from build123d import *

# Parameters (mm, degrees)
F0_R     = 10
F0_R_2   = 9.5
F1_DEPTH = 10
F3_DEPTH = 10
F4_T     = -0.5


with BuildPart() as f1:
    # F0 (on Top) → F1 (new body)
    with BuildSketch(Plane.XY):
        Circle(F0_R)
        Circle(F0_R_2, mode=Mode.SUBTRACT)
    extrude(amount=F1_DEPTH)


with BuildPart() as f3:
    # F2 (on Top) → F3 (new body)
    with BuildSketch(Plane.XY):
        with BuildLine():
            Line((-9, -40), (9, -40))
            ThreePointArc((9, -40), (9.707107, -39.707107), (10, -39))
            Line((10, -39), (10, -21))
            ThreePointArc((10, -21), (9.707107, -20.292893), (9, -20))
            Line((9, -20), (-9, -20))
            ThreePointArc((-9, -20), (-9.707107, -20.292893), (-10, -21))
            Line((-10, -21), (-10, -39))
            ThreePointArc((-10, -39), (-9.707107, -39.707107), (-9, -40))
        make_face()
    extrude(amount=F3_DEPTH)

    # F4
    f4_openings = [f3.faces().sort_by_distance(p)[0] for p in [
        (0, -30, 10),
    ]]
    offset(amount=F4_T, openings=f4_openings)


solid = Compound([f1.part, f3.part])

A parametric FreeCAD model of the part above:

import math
import FreeCAD as App
import Part
import Sketcher
from FreeCAD import Vector
Q = App.Units.Quantity


def faces_at(feature, points):
    """Names of the faces that lie closest to the given points."""
    faces = feature.Shape.Faces
    near = lambda p: min(range(len(faces)), key=lambda i: faces[i].distToShape(Part.Vertex(*p))[0])
    return sorted({f"Face{near(p) + 1}" for p in points})

doc = App.newDocument("Part")
params = doc.addObject("Spreadsheet::Sheet", "Params")
for row, (alias, value) in enumerate([
    ("sketch1_diameter", "20 mm"),
    ("sketch1_diameter2", "19 mm"),
    ("pad1_length", "10 mm"),
    ("sketch2_radius", "0.999999 mm"),
    ("sketch2_width", "18 mm"),
    ("pad2_length", "10 mm"),
    ("thickness_wall", "0.5 mm"),
], start=1):
    params.set(f"A{row}", alias)
    params.set(f"B{row}", "=" + value)
    params.setAlias(f"B{row}", alias)

body = doc.addObject("PartDesign::Body", "Body")

# Sketch on XY plane
sketch1 = body.newObject("Sketcher::SketchObject", "Sketch")
sketch1.AttachmentSupport = (doc.getObject("XY_Plane"), [""])
sketch1.MapMode = "FlatFace"
sketch1.addGeometry([
    Part.Circle(Vector(0, 0, 0), Vector(0, 0, 1), 10),
    Part.Circle(Vector(0, 0, 0), Vector(0, 0, 1), 10),
], False)
sketch1.addConstraint([
    Sketcher.Constraint("Coincident", 0, 3, -1, 1),
    Sketcher.Constraint("Coincident", 1, 3, -1, 1),
    Sketcher.Constraint("Diameter", 0, Q("20 mm")),
    Sketcher.Constraint("Diameter", 1, Q("19 mm")),
])
sketch1.setExpression("Constraints[2]", "Params.sketch1_diameter")
sketch1.setExpression("Constraints[3]", "Params.sketch1_diameter2")
pad1 = body.newObject("PartDesign::Pad", "Pad")
pad1.Profile = sketch1
pad1.setExpression("Length", "Params.pad1_length")
body2 = doc.addObject("PartDesign::Body", "Body001")

# Sketch on XY plane
sketch2 = body2.newObject("Sketcher::SketchObject", "Sketch001")
sketch2.AttachmentSupport = (doc.getObject("XY_Plane001"), [""])
sketch2.MapMode = "FlatFace"
sketch2.addGeometry([
    Part.LineSegment(Vector(-9, -40, 0), Vector(9, -40, 0)),  # 0
    Part.ArcOfCircle(Part.Circle(Vector(9, -39, 0), Vector(0, 0, 1), 1), math.radians(-90), math.radians(0)),  # 1
    Part.LineSegment(Vector(10, -39, 0), Vector(10, -21, 0)),  # 2
    Part.ArcOfCircle(Part.Circle(Vector(9, -21, 0), Vector(0, 0, 1), 1), math.radians(0), math.radians(90)),  # 3
    Part.LineSegment(Vector(9, -20, 0), Vector(-9, -20, 0)),  # 4
    Part.ArcOfCircle(Part.Circle(Vector(-9, -21, 0), Vector(0, 0, 1), 1), math.radians(90), math.radians(180)),  # 5
    Part.LineSegment(Vector(-10, -21, 0), Vector(-10, -39, 0)),  # 6
    Part.ArcOfCircle(Part.Circle(Vector(-9, -39, 0), Vector(0, 0, 1), 1), math.radians(180), math.radians(270)),  # 7
], False)
sketch2.addConstraint([
    Sketcher.Constraint("Tangent", 0, 2, 1, 1),
    Sketcher.Constraint("Tangent", 1, 2, 2, 1),
    Sketcher.Constraint("Tangent", 2, 2, 3, 1),
    Sketcher.Constraint("Tangent", 3, 2, 4, 1),
    Sketcher.Constraint("Tangent", 4, 2, 5, 1),
    Sketcher.Constraint("Tangent", 5, 2, 6, 1),
    Sketcher.Constraint("Tangent", 6, 2, 7, 1),
    Sketcher.Constraint("Tangent", 7, 2, 0, 1),
    Sketcher.Constraint("Horizontal", 0),
    Sketcher.Constraint("Vertical", 2),
    Sketcher.Constraint("Horizontal", 4),
    Sketcher.Constraint("Vertical", 6),
    Sketcher.Constraint("Equal", 1, 3),
    Sketcher.Constraint("Equal", 3, 5),
    Sketcher.Constraint("Equal", 5, 7),
    Sketcher.Constraint("Equal", 4, 2),
    Sketcher.Constraint("Radius", 1, Q("0.999999 mm")),
    Sketcher.Constraint("DistanceX", 0, 1, 0, 2, Q("18 mm")),
    Sketcher.Constraint("DistanceX", -1, 1, 1, 3, Q("9.000001 mm")),
    Sketcher.Constraint("DistanceY", 1, 3, -1, 1, Q("39.000001 mm")),
])
sketch2.setExpression("Constraints[16]", "Params.sketch2_radius")
sketch2.setExpression("Constraints[17]", "Params.sketch2_width")
pad2 = body2.newObject("PartDesign::Pad", "Pad001")
pad2.Profile = sketch2
pad2.setExpression("Length", "Params.pad2_length")
doc.recompute()

thickness = body2.newObject("PartDesign::Thickness", "Thickness")
thickness.Base = (pad2, faces_at(pad2, [(0, -30, 10)]))
thickness.setExpression("Value", "Params.thickness_wall")
thickness.Reversed = True
thickness.Join = "Arc"

doc.recompute()
